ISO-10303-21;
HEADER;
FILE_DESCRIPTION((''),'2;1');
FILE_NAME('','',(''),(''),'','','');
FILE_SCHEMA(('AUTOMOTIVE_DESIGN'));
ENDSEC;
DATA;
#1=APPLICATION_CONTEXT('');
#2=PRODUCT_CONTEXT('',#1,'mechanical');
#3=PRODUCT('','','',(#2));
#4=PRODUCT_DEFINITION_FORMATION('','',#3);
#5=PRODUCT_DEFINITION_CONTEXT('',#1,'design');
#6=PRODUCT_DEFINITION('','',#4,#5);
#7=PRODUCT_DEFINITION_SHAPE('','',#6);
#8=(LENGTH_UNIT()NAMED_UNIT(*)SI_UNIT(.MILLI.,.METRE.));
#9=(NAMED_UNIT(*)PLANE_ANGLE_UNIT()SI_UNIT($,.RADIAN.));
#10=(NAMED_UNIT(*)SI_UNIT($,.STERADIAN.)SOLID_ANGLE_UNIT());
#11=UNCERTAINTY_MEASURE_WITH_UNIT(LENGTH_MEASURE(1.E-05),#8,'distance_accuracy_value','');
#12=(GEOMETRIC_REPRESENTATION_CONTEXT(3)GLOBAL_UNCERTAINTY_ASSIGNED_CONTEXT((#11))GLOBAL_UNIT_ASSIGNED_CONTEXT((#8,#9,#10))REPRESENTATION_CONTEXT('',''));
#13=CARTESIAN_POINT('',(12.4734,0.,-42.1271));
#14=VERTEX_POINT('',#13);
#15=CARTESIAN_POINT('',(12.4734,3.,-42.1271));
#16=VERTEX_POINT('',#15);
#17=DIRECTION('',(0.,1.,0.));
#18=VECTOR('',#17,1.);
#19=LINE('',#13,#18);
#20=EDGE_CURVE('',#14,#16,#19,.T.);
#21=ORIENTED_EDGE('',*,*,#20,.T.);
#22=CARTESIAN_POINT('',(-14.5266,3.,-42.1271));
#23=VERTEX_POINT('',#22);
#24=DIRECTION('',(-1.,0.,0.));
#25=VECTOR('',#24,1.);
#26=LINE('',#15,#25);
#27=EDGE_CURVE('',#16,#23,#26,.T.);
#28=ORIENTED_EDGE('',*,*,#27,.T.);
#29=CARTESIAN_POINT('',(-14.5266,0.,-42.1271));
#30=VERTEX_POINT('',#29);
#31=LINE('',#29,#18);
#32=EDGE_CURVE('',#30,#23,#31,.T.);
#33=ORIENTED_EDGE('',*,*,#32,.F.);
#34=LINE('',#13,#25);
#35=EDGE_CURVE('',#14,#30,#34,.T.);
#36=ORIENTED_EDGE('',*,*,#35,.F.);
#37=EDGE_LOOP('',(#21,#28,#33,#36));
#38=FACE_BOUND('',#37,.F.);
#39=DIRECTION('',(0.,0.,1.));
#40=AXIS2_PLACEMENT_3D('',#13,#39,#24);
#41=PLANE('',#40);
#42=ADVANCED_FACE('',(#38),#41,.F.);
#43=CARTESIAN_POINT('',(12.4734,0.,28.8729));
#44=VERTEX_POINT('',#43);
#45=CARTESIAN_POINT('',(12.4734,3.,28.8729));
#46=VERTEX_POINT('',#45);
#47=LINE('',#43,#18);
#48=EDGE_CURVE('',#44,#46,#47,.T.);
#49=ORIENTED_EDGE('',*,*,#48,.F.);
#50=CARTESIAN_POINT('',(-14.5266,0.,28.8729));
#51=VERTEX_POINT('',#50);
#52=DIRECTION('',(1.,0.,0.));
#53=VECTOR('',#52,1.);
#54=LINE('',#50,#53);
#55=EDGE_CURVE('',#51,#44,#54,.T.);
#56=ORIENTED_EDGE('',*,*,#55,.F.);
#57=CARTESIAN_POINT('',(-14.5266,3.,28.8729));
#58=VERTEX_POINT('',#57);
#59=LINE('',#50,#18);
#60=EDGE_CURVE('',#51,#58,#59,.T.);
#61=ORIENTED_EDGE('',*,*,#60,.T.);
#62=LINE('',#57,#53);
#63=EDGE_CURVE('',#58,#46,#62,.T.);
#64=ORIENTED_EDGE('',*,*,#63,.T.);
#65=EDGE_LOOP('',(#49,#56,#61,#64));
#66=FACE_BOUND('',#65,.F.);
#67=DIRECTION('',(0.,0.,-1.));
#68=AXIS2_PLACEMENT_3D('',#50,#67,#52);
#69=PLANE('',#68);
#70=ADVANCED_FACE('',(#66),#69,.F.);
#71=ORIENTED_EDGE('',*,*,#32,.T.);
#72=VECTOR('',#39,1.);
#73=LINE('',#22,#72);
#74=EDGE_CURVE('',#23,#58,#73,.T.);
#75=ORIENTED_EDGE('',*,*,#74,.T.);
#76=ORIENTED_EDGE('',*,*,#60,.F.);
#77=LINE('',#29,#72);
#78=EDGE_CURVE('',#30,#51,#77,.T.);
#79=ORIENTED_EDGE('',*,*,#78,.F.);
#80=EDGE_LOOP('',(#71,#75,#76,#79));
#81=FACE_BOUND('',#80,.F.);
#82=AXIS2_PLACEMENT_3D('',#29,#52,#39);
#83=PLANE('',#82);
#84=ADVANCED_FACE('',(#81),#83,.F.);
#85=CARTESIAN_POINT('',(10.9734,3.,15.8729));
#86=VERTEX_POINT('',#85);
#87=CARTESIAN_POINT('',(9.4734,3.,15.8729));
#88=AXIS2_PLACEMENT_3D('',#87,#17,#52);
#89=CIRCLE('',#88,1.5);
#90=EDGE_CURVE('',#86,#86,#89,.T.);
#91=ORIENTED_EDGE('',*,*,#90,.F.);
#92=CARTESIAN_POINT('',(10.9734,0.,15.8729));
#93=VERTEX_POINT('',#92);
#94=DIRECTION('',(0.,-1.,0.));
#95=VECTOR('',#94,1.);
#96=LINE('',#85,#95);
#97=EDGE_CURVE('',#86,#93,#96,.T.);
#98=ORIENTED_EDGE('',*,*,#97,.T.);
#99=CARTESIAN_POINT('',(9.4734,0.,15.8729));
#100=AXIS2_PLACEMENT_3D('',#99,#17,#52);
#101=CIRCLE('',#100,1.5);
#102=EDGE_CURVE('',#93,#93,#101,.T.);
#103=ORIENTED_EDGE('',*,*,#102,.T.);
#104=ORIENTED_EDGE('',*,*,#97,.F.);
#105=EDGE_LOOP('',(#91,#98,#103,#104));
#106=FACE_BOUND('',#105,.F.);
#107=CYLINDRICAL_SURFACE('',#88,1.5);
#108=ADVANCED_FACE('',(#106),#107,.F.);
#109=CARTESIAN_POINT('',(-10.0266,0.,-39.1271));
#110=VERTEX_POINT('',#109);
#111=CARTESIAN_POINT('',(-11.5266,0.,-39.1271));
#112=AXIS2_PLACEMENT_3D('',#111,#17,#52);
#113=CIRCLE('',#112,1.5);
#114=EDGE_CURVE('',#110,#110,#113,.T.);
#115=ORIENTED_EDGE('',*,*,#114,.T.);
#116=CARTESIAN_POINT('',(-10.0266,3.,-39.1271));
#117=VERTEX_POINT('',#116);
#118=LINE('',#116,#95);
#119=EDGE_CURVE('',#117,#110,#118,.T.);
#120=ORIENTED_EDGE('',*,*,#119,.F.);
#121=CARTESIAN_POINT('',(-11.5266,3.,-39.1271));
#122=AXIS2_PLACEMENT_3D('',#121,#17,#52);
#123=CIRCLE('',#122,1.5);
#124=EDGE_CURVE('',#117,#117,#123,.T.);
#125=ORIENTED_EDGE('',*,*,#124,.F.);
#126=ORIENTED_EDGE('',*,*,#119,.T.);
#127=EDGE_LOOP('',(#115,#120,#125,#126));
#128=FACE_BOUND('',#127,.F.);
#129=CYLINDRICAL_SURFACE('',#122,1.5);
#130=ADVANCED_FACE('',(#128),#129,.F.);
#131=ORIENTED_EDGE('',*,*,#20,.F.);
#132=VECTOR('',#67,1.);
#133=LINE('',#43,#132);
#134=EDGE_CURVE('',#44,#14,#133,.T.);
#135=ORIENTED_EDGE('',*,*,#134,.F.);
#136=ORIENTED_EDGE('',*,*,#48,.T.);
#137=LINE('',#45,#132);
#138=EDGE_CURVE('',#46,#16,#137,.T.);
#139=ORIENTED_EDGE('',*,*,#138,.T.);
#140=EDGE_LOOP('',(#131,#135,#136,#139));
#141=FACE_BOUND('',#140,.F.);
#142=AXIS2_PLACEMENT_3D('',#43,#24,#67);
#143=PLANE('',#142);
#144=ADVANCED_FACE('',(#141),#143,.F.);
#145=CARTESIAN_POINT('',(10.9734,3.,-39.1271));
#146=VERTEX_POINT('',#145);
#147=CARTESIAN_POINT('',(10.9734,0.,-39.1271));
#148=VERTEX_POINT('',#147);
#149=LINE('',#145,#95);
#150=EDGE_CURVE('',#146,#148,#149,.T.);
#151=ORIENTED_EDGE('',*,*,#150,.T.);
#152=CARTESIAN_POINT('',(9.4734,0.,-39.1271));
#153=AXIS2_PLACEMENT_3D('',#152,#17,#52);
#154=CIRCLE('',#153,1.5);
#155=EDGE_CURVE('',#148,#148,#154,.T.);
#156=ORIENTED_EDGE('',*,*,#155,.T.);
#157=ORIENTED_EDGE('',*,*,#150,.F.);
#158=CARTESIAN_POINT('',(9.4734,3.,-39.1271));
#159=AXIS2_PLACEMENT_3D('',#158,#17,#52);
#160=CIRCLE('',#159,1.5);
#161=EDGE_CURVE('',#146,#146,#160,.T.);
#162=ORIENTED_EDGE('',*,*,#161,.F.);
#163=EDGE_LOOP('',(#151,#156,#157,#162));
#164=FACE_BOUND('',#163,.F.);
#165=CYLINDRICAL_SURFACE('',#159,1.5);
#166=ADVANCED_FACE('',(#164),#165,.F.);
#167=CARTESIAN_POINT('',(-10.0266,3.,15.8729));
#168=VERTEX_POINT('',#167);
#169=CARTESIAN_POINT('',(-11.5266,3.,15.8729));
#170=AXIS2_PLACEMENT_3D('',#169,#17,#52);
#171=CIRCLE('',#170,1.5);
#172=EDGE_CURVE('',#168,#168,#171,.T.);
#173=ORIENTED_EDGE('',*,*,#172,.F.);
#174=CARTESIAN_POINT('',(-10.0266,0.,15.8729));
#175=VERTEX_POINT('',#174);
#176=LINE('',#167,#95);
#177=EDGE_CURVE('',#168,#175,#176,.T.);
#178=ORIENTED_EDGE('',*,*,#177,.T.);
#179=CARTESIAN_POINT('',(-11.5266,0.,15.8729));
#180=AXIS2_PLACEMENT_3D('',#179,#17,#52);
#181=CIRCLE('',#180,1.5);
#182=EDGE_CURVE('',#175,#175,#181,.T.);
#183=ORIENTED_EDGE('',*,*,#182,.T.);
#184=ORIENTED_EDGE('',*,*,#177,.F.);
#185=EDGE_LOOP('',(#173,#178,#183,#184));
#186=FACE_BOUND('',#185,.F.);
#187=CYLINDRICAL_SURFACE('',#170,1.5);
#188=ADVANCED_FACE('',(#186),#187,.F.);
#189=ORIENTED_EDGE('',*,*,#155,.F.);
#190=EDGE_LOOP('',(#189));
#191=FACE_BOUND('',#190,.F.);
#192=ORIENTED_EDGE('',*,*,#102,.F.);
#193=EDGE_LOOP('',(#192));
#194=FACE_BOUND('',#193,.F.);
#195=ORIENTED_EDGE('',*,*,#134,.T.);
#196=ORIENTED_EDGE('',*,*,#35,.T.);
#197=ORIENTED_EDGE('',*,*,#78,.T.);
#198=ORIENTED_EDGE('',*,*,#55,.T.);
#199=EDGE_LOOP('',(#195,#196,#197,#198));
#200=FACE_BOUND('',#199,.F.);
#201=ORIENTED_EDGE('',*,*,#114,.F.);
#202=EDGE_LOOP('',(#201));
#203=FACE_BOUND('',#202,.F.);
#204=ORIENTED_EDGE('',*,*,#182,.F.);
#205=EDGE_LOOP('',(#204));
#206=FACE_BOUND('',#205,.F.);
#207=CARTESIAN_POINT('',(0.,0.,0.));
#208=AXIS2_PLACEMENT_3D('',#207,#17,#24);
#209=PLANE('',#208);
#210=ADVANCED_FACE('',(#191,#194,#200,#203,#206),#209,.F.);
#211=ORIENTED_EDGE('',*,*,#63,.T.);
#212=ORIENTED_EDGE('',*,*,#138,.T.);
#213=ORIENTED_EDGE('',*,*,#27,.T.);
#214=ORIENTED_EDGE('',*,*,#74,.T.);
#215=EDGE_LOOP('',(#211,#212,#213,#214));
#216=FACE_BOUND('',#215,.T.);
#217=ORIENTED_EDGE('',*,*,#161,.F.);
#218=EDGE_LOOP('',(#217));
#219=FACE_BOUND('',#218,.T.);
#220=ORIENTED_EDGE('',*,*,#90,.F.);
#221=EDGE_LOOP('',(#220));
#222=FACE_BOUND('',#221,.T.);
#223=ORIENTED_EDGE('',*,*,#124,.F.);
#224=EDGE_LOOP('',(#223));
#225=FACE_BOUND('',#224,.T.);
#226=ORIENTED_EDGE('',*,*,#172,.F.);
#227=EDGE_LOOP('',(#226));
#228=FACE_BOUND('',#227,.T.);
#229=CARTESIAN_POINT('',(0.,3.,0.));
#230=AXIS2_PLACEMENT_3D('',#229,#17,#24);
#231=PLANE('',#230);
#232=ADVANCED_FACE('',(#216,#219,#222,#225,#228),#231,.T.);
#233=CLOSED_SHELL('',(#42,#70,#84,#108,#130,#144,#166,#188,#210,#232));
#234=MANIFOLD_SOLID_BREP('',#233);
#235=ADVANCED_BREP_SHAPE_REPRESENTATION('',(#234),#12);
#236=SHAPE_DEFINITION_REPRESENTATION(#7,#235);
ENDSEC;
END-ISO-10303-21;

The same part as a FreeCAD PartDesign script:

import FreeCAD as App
import Part
import Sketcher
Q = App.Units.Quantity

doc = App.newDocument("Part")
body = doc.addObject("PartDesign::Body", "Body")

# Sketch on XZ plane
sketch1 = body.newObject("Sketcher::SketchObject", "Sketch")
sketch1.AttachmentSupport = (doc.getObject("XZ_Plane"), [""])
sketch1.MapMode = "FlatFace"
sketch1.addGeometry(Part.LineSegment(App.Vector(-15, -42, 0), App.Vector(-15, 29, 0)), False)
sketch1.addGeometry(Part.LineSegment(App.Vector(-15, 29, 0), App.Vector(12, 29, 0)), False)
sketch1.addGeometry(Part.LineSegment(App.Vector(12, 29, 0), App.Vector(12, -42, 0)), False)
sketch1.addGeometry(Part.LineSegment(App.Vector(12, -42, 0), App.Vector(-15, -42, 0)), False)
sketch1.addConstraint(Sketcher.Constraint("Coincident", 0, 2, 1, 1))
sketch1.addConstraint(Sketcher.Constraint("Coincident", 1, 2, 2, 1))
sketch1.addConstraint(Sketcher.Constraint("Coincident", 2, 2, 3, 1))
sketch1.addConstraint(Sketcher.Constraint("Coincident", 3, 2, 0, 1))
sketch1.addConstraint(Sketcher.Constraint("Vertical", 0))
sketch1.addConstraint(Sketcher.Constraint("Horizontal", 1))
sketch1.addConstraint(Sketcher.Constraint("Vertical", 2))
sketch1.addConstraint(Sketcher.Constraint("Horizontal", 3))
sketch1.addConstraint(Sketcher.Constraint("DistanceX", 1, 1, 1, 2, Q("27 mm")))
sketch1.addConstraint(Sketcher.Constraint("DistanceY", 0, 1, 0, 2, Q("71 mm")))
sketch1.addConstraint(Sketcher.Constraint("DistanceY", -1, 1, 0, 2, Q("28.873 mm")))
sketch1.addConstraint(Sketcher.Constraint("DistanceX", 0, 2, -1, 1, Q("14.5266 mm")))
pad1 = body.newObject("PartDesign::Pad", "Pad")
pad1.Profile = sketch1
pad1.Length = 3
pad1.Reversed = True

# Sketch on XZ plane
sketch2 = body.newObject("Sketcher::SketchObject", "Sketch001")
sketch2.AttachmentSupport = (doc.getObject("XZ_Plane"), [""])
sketch2.MapMode = "FlatFace"
sketch2.AttachmentOffset = App.Placement(App.Vector(0, 0, -3), App.Rotation())
sketch2.addGeometry(Part.Circle(App.Vector(-11.5, 15.9, 0), App.Vector(0, 0, 1), 1.5), False)
sketch2.addGeometry(Part.Circle(App.Vector(-11.5, -39.1, 0), App.Vector(0, 0, 1), 1.5), False)
sketch2.addGeometry(Part.Circle(App.Vector(9.5, 15.9, 0), App.Vector(0, 0, 1), 1.5), False)
sketch2.addGeometry(Part.Circle(App.Vector(9.5, -39.1, 0), App.Vector(0, 0, 1), 1.5), False)
sketch2.addConstraint(Sketcher.Constraint("Equal", 0, 1))
sketch2.addConstraint(Sketcher.Constraint("Equal", 1, 2))
sketch2.addConstraint(Sketcher.Constraint("Equal", 2, 3))
sketch2.addConstraint(Sketcher.Constraint("Horizontal", 0, 3, 2, 3))
sketch2.addConstraint(Sketcher.Constraint("Horizontal", 1, 3, 3, 3))
sketch2.addConstraint(Sketcher.Constraint("Vertical", 0, 3, 1, 3))
sketch2.addConstraint(Sketcher.Constraint("Vertical", 2, 3, 3, 3))
sketch2.addConstraint(Sketcher.Constraint("Diameter", 0, Q("3 mm")))
sketch2.addConstraint(Sketcher.Constraint("DistanceY", 1, 3, 0, 3, Q("55 mm")))
sketch2.addConstraint(Sketcher.Constraint("DistanceX", 0, 3, 2, 3, Q("21 mm")))
sketch2.addConstraint(Sketcher.Constraint("DistanceY", -1, 1, 0, 3, Q("15.873 mm")))
sketch2.addConstraint(Sketcher.Constraint("DistanceX", 0, 3, -1, 1, Q("11.5266 mm")))
pocket1 = body.newObject("PartDesign::Pocket", "Pocket")
pocket1.Profile = sketch2
pocket1.Type = "ThroughAll"
pocket1.Reversed = True

doc.recompute()
